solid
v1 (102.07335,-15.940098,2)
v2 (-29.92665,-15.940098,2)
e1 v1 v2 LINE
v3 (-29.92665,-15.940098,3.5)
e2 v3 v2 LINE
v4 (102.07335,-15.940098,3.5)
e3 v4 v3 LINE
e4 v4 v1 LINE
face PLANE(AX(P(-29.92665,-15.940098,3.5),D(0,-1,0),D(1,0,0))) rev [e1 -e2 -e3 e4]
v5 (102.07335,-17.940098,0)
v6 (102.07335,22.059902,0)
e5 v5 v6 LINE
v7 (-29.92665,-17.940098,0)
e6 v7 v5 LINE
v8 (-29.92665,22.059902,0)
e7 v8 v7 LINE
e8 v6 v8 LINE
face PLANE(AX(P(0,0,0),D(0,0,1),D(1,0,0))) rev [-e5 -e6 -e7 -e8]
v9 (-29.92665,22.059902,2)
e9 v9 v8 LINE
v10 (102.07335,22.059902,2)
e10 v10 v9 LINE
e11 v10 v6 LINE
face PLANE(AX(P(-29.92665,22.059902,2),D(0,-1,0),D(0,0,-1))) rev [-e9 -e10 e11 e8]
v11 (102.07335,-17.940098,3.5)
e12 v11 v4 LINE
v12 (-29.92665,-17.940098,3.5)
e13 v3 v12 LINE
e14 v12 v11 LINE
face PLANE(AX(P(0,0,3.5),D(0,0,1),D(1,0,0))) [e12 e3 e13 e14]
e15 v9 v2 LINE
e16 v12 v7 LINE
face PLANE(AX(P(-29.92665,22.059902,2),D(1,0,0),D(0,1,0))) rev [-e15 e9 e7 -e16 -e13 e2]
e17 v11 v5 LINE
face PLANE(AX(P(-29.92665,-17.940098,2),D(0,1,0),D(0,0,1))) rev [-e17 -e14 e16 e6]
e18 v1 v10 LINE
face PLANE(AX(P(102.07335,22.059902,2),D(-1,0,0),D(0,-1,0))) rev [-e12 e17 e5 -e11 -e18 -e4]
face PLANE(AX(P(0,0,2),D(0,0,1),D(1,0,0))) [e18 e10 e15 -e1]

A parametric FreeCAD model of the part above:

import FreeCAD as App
import Part
import Sketcher
from FreeCAD import Vector

doc = App.newDocument("Part")
params = doc.addObject("Spreadsheet::Sheet", "Params")
for row, (alias, value) in enumerate([
    ("sketch1_width", "132 mm"),
    ("sketch1_height", "40 mm"),
    ("pad1_length", "2 mm"),
    ("sketch2_width", "132 mm"),
    ("sketch2_height", "2 mm"),
    ("pad2_length", "1.5 mm"),
], start=1):
    params.set(f"A{row}", alias)
    params.set(f"B{row}", "=" + value)
    params.setAlias(f"B{row}", alias)

body = doc.addObject("PartDesign::Body", "Body")

# Sketch on XY plane
sketch1 = body.newObject("Sketcher::SketchObject", "Sketch")
sketch1.AttachmentSupport = (doc.getObject("XY_Plane"), [""])
sketch1.MapMode = "FlatFace"
sketch1.addGeometry(Part.LineSegment(Vector(-30, 22, 0), Vector(-30, -18, 0)), False)
sketch1.addGeometry(Part.LineSegment(Vector(-30, -18, 0), Vector(102, -18, 0)), False)
sketch1.addGeometry(Part.LineSegment(Vector(102, -18, 0), Vector(102, 22, 0)), False)
sketch1.addGeometry(Part.LineSegment(Vector(102, 22, 0), Vector(-30, 22, 0)), False)
sketch1.addConstraint(Sketcher.Constraint("Coincident", 0, 2, 1, 1))
sketch1.addConstraint(Sketcher.Constraint("Coincident", 1, 2, 2, 1))
sketch1.addConstraint(Sketcher.Constraint("Coincident", 2, 2, 3, 1))
sketch1.addConstraint(Sketcher.Constraint("Coincident", 3, 2, 0, 1))
sketch1.addConstraint(Sketcher.Constraint("Vertical", 0))
sketch1.addConstraint(Sketcher.Constraint("Horizontal", 1))
sketch1.addConstraint(Sketcher.Constraint("Vertical", 2))
sketch1.addConstraint(Sketcher.Constraint("Horizontal", 3))
sketch1.addConstraint(Sketcher.Constraint("DistanceX", 1, 1, 1, 2, 132.0))
sketch1.addConstraint(Sketcher.Constraint("DistanceY", 0, 2, 0, 1, 40.0))
sketch1.addConstraint(Sketcher.Constraint("DistanceX", 0, 2, -1, 1, 29.92665))
sketch1.addConstraint(Sketcher.Constraint("DistanceY", 0, 2, -1, 1, 17.940098))
sketch1.setExpression("Constraints[8]", "Params.sketch1_width")
sketch1.setExpression("Constraints[9]", "Params.sketch1_height")
pad1 = body.newObject("PartDesign::Pad", "Pad")
pad1.Profile = sketch1
pad1.setExpression("Length", "Params.pad1_length")

# Sketch on XY plane
sketch2 = body.newObject("Sketcher::SketchObject", "Sketch001")
sketch2.AttachmentSupport = (doc.getObject("XY_Plane"), [""])
sketch2.MapMode = "FlatFace"
sketch2.AttachmentOffset = App.Placement(Vector(0, 0, 2), App.Rotation())
sketch2.addGeometry(Part.LineSegment(Vector(-29.9, -15.9, 0), Vector(-29.9, -17.9, 0)), False)
sketch2.addGeometry(Part.LineSegment(Vector(-29.9, -17.9, 0), Vector(102.1, -17.9, 0)), False)
sketch2.addGeometry(Part.LineSegment(Vector(102.1, -17.9, 0), Vector(102.1, -15.9, 0)), False)
sketch2.addGeometry(Part.LineSegment(Vector(102.1, -15.9, 0), Vector(-29.9, -15.9, 0)), False)
sketch2.addConstraint(Sketcher.Constraint("Coincident", 0, 2, 1, 1))
sketch2.addConstraint(Sketcher.Constraint("Coincident", 1, 2, 2, 1))
sketch2.addConstraint(Sketcher.Constraint("Coincident", 2, 2, 3, 1))
sketch2.addConstraint(Sketcher.Constraint("Coincident", 3, 2, 0, 1))
sketch2.addConstraint(Sketcher.Constraint("Vertical", 0))
sketch2.addConstraint(Sketcher.Constraint("Horizontal", 1))
sketch2.addConstraint(Sketcher.Constraint("Vertical", 2))
sketch2.addConstraint(Sketcher.Constraint("Horizontal", 3))
sketch2.addConstraint(Sketcher.Constraint("DistanceX", 1, 1, 1, 2, 132.0))
sketch2.addConstraint(Sketcher.Constraint("DistanceY", 0, 2, 0, 1, 2.0))
sketch2.addConstraint(Sketcher.Constraint("DistanceX", 0, 2, -1, 1, 29.92665))
sketch2.addConstraint(Sketcher.Constraint("DistanceY", 0, 2, -1, 1, 17.940098))
sketch2.setExpression("Constraints[8]", "Params.sketch2_width")
sketch2.setExpression("Constraints[9]", "Params.sketch2_height")
pad2 = body.newObject("PartDesign::Pad", "Pad001")
pad2.Profile = sketch2
pad2.setExpression("Length", "Params.pad2_length")

doc.recompute()
